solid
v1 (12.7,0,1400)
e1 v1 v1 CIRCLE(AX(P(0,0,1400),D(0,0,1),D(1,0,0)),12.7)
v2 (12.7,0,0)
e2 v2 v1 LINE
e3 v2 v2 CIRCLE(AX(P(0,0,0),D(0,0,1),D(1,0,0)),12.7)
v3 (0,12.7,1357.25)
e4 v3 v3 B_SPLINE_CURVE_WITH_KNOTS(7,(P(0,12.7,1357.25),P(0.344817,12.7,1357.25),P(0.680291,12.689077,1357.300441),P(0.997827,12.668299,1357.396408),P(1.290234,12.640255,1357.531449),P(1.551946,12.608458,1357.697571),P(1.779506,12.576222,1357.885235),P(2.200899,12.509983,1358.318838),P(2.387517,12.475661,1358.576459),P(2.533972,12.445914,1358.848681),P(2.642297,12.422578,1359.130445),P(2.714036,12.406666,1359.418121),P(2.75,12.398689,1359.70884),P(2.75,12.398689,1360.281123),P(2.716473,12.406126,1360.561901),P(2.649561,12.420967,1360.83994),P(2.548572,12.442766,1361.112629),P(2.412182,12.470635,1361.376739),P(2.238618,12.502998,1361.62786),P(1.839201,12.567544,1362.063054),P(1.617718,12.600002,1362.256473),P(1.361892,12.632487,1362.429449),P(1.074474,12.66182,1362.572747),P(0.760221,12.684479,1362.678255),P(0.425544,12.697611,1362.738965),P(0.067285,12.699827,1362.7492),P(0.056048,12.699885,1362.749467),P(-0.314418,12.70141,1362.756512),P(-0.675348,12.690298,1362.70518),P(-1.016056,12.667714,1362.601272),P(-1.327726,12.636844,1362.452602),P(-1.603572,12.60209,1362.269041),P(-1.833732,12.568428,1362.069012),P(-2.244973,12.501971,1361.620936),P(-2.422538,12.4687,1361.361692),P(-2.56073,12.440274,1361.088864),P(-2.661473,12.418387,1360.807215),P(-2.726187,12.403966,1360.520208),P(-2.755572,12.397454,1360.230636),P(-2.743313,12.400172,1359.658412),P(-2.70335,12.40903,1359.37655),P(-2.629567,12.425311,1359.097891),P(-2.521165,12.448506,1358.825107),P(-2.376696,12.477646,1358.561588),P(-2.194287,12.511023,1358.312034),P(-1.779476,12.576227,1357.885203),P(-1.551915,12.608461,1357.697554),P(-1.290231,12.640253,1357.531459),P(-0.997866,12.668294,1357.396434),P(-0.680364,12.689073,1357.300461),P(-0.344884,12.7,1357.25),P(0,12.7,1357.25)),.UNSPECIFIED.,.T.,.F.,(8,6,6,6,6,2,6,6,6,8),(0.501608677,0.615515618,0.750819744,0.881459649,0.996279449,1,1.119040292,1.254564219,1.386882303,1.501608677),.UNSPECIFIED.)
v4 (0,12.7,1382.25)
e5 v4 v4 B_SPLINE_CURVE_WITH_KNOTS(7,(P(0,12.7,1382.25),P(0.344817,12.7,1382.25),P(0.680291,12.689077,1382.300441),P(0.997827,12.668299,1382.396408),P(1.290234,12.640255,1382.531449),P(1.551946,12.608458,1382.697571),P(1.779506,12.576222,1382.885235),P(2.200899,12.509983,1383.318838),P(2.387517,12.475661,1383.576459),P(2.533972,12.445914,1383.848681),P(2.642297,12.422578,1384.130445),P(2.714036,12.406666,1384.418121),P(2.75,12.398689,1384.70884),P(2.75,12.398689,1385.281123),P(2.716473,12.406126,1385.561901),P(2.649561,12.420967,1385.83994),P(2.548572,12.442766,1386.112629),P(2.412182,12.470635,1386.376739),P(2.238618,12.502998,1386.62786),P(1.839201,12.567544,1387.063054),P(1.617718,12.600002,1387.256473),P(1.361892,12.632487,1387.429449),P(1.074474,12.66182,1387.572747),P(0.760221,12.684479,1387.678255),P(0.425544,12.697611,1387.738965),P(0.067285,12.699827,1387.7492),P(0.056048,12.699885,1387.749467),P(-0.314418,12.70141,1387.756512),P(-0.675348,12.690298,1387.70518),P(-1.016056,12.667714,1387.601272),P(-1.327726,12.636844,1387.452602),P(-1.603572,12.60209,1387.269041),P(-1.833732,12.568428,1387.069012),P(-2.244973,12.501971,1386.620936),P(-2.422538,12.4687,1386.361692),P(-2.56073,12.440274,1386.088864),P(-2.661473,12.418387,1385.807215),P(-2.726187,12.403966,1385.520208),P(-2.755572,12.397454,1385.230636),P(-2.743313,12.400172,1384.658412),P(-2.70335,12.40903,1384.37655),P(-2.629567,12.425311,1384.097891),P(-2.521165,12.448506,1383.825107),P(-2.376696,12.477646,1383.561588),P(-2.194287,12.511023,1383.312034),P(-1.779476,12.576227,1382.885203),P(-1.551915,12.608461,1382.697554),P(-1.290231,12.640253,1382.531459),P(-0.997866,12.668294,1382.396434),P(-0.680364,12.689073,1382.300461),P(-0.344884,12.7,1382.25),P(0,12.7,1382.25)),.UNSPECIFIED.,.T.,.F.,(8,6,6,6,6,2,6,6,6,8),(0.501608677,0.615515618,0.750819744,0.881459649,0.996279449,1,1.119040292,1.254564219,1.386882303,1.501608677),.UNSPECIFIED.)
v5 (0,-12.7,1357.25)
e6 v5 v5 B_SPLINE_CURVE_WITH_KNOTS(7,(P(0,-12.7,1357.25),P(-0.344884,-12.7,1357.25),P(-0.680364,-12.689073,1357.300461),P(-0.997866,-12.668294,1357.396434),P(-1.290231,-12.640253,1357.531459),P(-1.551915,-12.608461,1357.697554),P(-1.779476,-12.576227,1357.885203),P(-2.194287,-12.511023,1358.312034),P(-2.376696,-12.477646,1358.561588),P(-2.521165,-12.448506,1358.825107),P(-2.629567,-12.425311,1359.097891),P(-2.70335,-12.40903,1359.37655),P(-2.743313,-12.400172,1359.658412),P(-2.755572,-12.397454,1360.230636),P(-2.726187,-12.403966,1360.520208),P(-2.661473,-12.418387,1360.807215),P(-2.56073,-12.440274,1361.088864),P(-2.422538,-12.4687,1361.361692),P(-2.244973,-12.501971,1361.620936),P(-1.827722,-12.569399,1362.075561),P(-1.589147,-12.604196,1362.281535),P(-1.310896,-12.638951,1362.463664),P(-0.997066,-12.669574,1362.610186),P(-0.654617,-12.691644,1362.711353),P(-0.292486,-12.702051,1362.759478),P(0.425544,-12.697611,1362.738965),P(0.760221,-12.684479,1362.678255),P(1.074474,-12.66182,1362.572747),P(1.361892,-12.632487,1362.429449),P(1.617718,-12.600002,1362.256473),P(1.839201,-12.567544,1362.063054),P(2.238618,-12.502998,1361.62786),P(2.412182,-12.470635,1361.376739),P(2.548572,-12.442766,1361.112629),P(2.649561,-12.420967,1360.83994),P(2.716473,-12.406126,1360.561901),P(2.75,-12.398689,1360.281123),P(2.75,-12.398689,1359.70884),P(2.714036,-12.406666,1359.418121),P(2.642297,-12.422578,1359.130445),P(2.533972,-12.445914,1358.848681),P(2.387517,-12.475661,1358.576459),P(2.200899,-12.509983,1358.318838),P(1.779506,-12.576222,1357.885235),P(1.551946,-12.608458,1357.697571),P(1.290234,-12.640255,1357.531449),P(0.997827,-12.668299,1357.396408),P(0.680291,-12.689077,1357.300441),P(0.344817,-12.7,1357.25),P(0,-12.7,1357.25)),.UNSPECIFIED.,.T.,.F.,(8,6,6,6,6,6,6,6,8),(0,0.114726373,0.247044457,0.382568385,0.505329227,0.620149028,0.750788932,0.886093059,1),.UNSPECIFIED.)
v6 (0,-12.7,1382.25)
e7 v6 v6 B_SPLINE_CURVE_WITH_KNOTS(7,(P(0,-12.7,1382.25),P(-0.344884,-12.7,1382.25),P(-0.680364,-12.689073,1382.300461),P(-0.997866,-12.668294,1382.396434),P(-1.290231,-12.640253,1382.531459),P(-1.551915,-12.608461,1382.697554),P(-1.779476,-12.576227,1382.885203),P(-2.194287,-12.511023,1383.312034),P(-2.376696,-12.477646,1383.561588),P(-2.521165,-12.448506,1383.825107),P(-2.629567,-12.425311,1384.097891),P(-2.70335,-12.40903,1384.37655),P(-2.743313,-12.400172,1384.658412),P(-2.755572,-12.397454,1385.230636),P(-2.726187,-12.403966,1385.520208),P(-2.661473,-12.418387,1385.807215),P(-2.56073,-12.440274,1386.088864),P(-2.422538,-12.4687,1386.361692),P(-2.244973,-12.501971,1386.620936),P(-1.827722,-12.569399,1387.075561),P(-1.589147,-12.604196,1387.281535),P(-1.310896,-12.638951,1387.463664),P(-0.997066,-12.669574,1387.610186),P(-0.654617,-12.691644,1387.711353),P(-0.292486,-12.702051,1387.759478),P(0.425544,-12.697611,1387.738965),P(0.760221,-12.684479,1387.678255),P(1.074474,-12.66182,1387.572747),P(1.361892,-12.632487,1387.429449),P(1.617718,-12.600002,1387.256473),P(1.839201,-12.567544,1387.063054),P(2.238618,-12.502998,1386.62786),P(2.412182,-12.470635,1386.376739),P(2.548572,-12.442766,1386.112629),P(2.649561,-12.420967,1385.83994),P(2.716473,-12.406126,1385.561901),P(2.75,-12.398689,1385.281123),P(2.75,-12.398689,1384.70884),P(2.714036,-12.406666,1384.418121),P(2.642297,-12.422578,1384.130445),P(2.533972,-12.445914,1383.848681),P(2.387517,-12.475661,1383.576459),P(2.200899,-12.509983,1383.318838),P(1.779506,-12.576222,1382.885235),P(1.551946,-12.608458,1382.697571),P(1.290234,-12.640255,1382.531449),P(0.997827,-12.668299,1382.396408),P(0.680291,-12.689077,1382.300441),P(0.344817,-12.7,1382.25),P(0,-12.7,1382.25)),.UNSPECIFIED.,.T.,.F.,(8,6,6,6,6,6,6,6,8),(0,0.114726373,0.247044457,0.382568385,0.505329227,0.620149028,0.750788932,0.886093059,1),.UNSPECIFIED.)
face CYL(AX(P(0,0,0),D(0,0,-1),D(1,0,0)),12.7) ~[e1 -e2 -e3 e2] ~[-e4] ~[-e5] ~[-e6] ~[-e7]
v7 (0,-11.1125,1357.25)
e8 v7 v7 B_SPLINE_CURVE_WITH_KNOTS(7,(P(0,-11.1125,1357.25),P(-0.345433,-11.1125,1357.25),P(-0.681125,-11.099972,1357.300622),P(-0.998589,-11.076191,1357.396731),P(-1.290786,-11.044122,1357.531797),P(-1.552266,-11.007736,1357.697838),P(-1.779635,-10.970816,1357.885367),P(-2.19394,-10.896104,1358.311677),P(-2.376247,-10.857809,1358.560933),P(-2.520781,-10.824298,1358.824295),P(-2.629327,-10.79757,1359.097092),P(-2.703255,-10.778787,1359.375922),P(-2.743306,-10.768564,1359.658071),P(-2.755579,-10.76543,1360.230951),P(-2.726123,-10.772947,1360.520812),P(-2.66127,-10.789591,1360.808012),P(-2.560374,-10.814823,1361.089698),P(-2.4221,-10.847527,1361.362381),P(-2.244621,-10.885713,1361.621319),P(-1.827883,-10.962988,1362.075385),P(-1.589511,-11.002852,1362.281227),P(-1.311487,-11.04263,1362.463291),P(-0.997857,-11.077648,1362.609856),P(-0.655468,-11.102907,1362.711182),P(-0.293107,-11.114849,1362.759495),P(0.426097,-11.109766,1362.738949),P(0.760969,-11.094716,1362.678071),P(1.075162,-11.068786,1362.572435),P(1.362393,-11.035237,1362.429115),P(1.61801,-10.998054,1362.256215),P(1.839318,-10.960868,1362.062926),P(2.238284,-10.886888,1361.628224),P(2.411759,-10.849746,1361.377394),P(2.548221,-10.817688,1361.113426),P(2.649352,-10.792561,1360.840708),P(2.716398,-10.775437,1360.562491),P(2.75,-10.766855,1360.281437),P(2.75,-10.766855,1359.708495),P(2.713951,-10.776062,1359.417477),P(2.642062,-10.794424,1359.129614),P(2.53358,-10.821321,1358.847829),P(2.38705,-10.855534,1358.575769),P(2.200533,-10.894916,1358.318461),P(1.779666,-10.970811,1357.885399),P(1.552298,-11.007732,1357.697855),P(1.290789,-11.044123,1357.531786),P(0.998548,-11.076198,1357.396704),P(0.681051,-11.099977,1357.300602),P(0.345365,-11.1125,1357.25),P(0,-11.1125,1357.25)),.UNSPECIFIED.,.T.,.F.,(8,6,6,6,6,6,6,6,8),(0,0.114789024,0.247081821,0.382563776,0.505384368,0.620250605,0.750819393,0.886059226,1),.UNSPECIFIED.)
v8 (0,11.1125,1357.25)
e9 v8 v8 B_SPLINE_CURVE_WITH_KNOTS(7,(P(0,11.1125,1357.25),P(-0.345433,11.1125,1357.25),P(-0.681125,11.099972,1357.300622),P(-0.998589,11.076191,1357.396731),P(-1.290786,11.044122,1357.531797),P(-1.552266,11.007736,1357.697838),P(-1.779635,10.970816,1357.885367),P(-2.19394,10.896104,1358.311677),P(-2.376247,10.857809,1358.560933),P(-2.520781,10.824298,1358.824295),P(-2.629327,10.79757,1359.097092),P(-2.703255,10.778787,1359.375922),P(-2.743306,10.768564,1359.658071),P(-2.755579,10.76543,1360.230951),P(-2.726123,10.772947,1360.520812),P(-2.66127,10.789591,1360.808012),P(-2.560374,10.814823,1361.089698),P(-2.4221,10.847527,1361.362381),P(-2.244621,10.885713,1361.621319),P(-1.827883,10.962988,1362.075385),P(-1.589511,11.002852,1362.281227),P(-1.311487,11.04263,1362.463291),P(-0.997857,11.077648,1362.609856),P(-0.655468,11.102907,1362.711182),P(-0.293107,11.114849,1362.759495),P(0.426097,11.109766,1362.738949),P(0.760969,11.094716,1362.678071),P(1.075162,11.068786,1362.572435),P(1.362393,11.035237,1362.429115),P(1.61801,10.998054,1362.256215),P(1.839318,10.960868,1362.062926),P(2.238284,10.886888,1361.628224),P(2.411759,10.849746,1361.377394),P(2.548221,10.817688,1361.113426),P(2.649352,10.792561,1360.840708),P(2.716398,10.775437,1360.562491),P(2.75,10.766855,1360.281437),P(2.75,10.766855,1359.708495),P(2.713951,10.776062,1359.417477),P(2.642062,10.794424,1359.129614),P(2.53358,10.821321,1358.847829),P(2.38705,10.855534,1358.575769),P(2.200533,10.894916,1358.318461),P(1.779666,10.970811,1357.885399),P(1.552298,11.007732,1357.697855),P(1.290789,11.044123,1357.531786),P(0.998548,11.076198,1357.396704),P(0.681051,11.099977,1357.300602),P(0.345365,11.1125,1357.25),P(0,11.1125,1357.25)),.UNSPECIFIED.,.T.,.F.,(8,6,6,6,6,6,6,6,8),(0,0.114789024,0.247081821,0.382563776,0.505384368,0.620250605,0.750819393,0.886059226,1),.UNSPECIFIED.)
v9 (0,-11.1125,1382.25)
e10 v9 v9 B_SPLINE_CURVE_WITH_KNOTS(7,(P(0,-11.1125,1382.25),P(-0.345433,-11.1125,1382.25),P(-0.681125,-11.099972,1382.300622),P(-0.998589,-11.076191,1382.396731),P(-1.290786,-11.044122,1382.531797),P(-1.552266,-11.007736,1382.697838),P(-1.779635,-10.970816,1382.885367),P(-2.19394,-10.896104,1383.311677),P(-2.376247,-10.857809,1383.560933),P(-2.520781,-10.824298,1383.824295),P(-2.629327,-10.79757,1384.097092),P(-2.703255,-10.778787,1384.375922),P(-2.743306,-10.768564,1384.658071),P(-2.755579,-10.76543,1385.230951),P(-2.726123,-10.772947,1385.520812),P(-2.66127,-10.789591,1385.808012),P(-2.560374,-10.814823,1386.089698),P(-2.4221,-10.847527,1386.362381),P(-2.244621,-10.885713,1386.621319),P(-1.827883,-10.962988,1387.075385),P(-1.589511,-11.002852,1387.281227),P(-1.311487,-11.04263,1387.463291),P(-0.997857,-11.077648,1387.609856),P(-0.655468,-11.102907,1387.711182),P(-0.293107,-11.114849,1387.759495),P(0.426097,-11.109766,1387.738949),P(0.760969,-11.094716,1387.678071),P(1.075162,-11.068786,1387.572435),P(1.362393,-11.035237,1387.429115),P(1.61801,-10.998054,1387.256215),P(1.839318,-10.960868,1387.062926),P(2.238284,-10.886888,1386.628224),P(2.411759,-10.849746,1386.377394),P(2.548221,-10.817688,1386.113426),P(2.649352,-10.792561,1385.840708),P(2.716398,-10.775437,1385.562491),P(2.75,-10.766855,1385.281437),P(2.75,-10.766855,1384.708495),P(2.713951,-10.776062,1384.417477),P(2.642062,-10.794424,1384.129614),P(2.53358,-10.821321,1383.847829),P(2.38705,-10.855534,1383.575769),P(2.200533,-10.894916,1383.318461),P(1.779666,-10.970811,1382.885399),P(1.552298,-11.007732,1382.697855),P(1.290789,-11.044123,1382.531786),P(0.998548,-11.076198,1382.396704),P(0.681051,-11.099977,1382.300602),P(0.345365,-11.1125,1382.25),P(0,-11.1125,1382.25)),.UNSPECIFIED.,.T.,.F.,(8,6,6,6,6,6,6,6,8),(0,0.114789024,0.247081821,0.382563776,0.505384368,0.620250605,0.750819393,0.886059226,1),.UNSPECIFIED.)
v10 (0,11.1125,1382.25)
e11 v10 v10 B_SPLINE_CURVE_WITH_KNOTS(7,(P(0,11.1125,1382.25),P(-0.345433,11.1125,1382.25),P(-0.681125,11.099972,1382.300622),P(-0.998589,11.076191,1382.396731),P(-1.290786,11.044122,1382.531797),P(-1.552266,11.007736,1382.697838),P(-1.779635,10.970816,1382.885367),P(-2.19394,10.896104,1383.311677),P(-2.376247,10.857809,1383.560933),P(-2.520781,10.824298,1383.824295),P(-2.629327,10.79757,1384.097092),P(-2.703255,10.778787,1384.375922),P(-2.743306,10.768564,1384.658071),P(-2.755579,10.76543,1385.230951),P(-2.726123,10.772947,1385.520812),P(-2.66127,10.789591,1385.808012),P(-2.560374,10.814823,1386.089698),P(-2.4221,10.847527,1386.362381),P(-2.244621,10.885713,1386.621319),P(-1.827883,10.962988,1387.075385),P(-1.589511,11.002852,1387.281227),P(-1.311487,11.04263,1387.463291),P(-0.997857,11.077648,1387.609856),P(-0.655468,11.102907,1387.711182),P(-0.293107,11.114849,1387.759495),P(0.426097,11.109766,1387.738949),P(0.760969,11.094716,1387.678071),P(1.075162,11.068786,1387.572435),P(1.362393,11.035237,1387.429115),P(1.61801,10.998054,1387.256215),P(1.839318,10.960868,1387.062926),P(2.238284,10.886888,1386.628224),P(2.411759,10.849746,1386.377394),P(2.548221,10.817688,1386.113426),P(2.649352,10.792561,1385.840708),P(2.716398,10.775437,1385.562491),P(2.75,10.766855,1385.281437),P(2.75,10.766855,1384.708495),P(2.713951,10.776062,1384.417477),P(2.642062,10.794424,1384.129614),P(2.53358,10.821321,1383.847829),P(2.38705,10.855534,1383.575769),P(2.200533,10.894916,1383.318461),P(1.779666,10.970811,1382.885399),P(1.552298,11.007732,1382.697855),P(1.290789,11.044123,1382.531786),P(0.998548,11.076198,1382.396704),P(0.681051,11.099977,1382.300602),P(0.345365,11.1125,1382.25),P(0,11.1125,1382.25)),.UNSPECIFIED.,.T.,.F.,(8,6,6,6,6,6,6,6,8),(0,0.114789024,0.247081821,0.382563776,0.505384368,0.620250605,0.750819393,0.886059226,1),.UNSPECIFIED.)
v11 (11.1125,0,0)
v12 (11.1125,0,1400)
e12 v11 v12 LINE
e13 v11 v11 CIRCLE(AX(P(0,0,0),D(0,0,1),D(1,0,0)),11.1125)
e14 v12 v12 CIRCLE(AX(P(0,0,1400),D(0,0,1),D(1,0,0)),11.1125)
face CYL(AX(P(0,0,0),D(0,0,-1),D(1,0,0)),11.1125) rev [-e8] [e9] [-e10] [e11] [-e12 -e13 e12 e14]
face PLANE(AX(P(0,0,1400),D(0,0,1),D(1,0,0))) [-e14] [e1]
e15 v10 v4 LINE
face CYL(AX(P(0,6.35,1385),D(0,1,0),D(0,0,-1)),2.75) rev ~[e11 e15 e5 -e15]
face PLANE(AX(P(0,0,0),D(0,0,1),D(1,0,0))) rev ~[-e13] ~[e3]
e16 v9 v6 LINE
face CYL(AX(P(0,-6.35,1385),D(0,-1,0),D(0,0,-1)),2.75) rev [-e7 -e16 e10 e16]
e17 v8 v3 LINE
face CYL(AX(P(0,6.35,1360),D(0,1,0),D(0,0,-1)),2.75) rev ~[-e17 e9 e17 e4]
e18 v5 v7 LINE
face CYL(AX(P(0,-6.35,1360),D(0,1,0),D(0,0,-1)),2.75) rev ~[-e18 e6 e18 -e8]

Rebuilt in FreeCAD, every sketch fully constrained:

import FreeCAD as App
import Part
import Sketcher

V = App.Vector
Q = App.Units.Quantity

doc = App.newDocument("Part")
body = doc.addObject("PartDesign::Body", "Body")

sketch1 = body.newObject("Sketcher::SketchObject", "Sketch")
sketch1.AttachmentSupport = (doc.getObject("XY_Plane"), [""])
sketch1.MapMode = "FlatFace"
sketch1.addGeometry(Part.Circle(V(0, 0, 0), V(0, 0, 1), 13), False)
sketch1.addGeometry(Part.Circle(V(0, 0, 0), V(0, 0, 1), 11), False)
sketch1.addConstraint(Sketcher.Constraint("Coincident", 0, 3, -1, 1))
sketch1.addConstraint(Sketcher.Constraint("Coincident", 1, 3, -1, 1))
sketch1.addConstraint(Sketcher.Constraint("Diameter", 0, Q("1 in")))
sketch1.addConstraint(Sketcher.Constraint("Diameter", 1, Q("0.875 in")))
pad1 = body.newObject("PartDesign::Pad", "Pad")
pad1.Profile = sketch1
pad1.Length = 1400

sketch2 = body.newObject("Sketcher::SketchObject", "Sketch001")
sketch2.AttachmentSupport = (doc.getObject("YZ_Plane"), [""])
sketch2.MapMode = "FlatFace"
sketch2.addGeometry(Part.LineSegment(V(12.7, 1385, 0), V(0, 1385, 0)), False)
sketch2.addGeometry(Part.LineSegment(V(0, 1385, 0), V(0, 1382.2, 0)), False)
sketch2.addGeometry(Part.LineSegment(V(0, 1382.2, 0), V(12.7, 1382.2, 0)), False)
sketch2.addGeometry(Part.LineSegment(V(12.7, 1382.2, 0), V(12.7, 1385, 0)), False)
sketch2.addGeometry(Part.LineSegment(V(0, 1385, 0), V(12.7, 1385, 0)), True)
sketch2.addConstraint(Sketcher.Constraint("Coincident", 0, 2, 1, 1))
sketch2.addConstraint(Sketcher.Constraint("Coincident", 1, 2, 2, 1))
sketch2.addConstraint(Sketcher.Constraint("Coincident", 2, 2, 3, 1))
sketch2.addConstraint(Sketcher.Constraint("Coincident", 3, 2, 0, 1))
sketch2.addConstraint(Sketcher.Constraint("Horizontal", 0))
sketch2.addConstraint(Sketcher.Constraint("Vertical", 1))
sketch2.addConstraint(Sketcher.Constraint("Horizontal", 2))
sketch2.addConstraint(Sketcher.Constraint("Vertical", 3))
sketch2.addConstraint(Sketcher.Constraint("Horizontal", 4))
sketch2.addConstraint(Sketcher.Constraint("Coincident", 4, 1, 0, 2))
sketch2.addConstraint(Sketcher.Constraint("PointOnObject", 0, 2, -2))
sketch2.addConstraint(Sketcher.Constraint("Vertical", 2, 2, 4, 2))
sketch2.addConstraint(Sketcher.Constraint("DistanceX", 0, 2, 0, 1, Q("0.5 in")))
sketch2.addConstraint(Sketcher.Constraint("DistanceY", 1, 2, 1, 1, Q("2.75 mm")))
sketch2.addConstraint(Sketcher.Constraint("DistanceY", -1, 1, 0, 2, Q("1385 mm")))
groove = body.newObject("PartDesign::Groove", "Groove")
groove.Profile = sketch2
groove.ReferenceAxis = (sketch2, ["Axis0"])
groove.Angle = 360
doc.recompute()

linearpattern = body.newObject("PartDesign::LinearPattern", "LinearPattern")
linearpattern.Originals = [groove]
linearpattern.Direction = (doc.getObject("Z_Axis"), [""])
linearpattern.Mode = "offset"
linearpattern.Offset = 25
linearpattern.Occurrences = 2
linearpattern.Reversed = True
body.Tip = linearpattern
doc.recompute()

mirrored = body.newObject("PartDesign::Mirrored", "Mirrored")
mirrored.Originals = [groove]
mirrored.MirrorPlane = (doc.getObject("XZ_Plane"), [""])
body.Tip = mirrored

sketch3 = body.newObject("Sketcher::SketchObject", "Sketch002")
sketch3.AttachmentSupport = (doc.getObject("YZ_Plane"), [""])
sketch3.MapMode = "FlatFace"
sketch3.addGeometry(Part.LineSegment(V(0, 1360, 0), V(-12.7, 1360, 0)), False)
sketch3.addGeometry(Part.LineSegment(V(-12.7, 1360, 0), V(-12.7, 1357.2, 0)), False)
sketch3.addGeometry(Part.LineSegment(V(-12.7, 1357.2, 0), V(0, 1357.2, 0)), False)
sketch3.addGeometry(Part.LineSegment(V(0, 1357.2, 0), V(0, 1360, 0)), False)
sketch3.addGeometry(Part.LineSegment(V(-12.7, 1360, 0), V(0, 1360, 0)), True)
sketch3.addConstraint(Sketcher.Constraint("Coincident", 0, 2, 1, 1))
sketch3.addConstraint(Sketcher.Constraint("Coincident", 1, 2, 2, 1))
sketch3.addConstraint(Sketcher.Constraint("Coincident", 2, 2, 3, 1))
sketch3.addConstraint(Sketcher.Constraint("Coincident", 3, 2, 0, 1))
sketch3.addConstraint(Sketcher.Constraint("Horizontal", 0))
sketch3.addConstraint(Sketcher.Constraint("Vertical", 1))
sketch3.addConstraint(Sketcher.Constraint("Horizontal", 2))
sketch3.addConstraint(Sketcher.Constraint("Vertical", 3))
sketch3.addConstraint(Sketcher.Constraint("Horizontal", 4))
sketch3.addConstraint(Sketcher.Constraint("Coincident", 4, 1, 0, 2))
sketch3.addConstraint(Sketcher.Constraint("PointOnObject", 2, 2, -2))
sketch3.addConstraint(Sketcher.Constraint("PointOnObject", 4, 2, -2))
sketch3.addConstraint(Sketcher.Constraint("DistanceX", 0, 2, 0, 1, Q("0.5 in")))
sketch3.addConstraint(Sketcher.Constraint("DistanceY", 1, 2, 1, 1, Q("2.75 mm")))
sketch3.addConstraint(Sketcher.Constraint("DistanceY", -1, 1, 0, 2, Q("1360 mm")))
groove2 = body.newObject("PartDesign::Groove", "Groove001")
groove2.Profile = sketch3
groove2.ReferenceAxis = (sketch3, ["Axis0"])
groove2.Angle = 360

doc.recompute()
